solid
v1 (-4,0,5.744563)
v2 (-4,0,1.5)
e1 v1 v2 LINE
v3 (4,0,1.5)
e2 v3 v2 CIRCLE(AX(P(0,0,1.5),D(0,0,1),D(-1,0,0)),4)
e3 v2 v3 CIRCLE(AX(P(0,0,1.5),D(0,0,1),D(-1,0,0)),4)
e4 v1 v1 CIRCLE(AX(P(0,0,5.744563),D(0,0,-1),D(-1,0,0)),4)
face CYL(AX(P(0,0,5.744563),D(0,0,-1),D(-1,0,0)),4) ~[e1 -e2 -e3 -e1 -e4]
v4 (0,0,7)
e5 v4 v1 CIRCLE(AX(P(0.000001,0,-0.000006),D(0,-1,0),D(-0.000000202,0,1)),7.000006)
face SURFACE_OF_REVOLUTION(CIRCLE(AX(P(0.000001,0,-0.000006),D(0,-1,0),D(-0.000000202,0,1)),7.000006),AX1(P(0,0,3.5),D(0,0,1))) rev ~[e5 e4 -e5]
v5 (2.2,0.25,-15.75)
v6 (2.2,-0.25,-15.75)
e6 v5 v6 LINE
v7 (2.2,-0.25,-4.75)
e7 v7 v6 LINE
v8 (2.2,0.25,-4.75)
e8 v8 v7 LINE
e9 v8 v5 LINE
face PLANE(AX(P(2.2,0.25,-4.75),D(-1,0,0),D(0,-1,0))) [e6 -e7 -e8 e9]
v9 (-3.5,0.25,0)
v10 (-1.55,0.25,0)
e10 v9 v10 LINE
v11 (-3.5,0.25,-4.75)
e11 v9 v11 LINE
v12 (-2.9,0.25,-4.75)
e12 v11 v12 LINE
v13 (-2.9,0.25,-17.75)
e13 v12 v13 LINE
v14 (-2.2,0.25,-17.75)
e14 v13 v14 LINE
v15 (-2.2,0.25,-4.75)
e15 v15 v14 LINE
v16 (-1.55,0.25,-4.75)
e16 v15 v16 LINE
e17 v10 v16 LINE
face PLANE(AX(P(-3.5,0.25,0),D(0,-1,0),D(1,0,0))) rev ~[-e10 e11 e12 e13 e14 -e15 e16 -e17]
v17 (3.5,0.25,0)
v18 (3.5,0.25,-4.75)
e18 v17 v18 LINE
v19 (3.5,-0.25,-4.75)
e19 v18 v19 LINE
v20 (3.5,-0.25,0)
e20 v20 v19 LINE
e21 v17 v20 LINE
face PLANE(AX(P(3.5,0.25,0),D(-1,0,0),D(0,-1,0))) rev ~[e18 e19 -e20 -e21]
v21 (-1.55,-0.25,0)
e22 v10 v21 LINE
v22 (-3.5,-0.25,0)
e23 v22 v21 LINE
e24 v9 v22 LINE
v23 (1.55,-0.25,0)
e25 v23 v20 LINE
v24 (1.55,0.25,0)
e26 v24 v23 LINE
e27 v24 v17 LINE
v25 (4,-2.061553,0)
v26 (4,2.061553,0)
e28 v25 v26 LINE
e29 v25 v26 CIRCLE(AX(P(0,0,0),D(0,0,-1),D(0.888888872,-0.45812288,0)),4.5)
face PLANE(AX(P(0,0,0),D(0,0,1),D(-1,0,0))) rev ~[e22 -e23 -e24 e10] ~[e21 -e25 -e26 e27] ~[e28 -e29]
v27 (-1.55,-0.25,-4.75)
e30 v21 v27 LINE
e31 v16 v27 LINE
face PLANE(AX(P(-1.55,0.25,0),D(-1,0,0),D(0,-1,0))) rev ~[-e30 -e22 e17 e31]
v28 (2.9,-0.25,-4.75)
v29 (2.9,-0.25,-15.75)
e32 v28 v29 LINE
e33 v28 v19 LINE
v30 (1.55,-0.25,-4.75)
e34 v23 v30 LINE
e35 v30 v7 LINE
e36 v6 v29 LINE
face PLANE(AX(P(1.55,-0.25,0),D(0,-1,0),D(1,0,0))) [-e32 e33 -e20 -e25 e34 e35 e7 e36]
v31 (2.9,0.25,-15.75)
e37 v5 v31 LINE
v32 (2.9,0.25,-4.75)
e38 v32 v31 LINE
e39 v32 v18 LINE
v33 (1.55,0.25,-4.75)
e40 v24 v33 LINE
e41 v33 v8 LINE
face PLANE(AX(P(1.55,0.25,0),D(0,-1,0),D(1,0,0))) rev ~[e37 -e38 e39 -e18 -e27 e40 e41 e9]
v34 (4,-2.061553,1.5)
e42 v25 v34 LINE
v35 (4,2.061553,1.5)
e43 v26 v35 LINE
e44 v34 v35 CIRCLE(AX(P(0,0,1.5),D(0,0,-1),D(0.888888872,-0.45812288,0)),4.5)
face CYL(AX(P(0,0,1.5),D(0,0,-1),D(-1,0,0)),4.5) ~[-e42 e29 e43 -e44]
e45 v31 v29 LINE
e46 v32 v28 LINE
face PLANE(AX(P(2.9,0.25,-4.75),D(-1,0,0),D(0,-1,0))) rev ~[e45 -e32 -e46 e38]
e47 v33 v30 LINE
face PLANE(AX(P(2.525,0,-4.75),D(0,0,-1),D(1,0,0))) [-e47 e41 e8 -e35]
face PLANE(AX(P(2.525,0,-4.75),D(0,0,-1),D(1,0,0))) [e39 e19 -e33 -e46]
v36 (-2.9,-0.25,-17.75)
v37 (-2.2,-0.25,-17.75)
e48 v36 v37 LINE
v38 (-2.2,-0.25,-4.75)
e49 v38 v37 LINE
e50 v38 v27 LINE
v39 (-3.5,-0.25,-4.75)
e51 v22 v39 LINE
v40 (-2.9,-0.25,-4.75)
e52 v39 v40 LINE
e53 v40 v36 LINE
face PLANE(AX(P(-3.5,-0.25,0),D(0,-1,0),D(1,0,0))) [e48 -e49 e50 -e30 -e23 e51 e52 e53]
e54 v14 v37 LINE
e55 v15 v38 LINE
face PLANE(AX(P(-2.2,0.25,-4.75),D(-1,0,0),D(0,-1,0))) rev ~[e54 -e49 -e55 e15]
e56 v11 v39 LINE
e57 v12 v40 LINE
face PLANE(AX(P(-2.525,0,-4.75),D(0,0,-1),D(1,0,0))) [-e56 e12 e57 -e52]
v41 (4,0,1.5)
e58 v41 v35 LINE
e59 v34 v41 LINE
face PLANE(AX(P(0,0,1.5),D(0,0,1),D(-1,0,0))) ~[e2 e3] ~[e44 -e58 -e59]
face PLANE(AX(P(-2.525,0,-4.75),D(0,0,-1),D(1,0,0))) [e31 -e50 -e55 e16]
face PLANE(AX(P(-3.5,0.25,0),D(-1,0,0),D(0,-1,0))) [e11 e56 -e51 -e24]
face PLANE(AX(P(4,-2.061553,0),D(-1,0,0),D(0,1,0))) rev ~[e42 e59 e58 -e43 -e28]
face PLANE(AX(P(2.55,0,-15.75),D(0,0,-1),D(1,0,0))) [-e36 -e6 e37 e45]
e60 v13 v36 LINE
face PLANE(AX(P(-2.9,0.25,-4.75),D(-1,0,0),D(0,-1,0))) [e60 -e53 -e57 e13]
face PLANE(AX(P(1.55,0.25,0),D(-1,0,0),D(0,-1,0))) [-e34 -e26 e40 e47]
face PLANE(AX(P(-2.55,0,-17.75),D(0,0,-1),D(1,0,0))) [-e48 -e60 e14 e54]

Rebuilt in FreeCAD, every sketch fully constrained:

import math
import FreeCAD as App
import Part
import Sketcher
from FreeCAD import Vector


def add_polygon(sketch, points):
    """Adds a closed chain of lines whose ends are joined by coincident constraints."""
    first, n = sketch.GeometryCount, len(points)
    for a, b in zip(points, points[1:] + points[:1]):
        sketch.addGeometry(Part.LineSegment(App.Vector(*a, 0), App.Vector(*b, 0)), False)
    for i in range(n):
        sketch.addConstraint(Sketcher.Constraint("Coincident", first + i, 2, first + (i + 1) % n, 1))

doc = App.newDocument("Part")
body = doc.addObject("PartDesign::Body", "Body")

# Sketch on XZ plane
sketch1 = body.newObject("Sketcher::SketchObject", "Sketch")
sketch1.AttachmentSupport = (doc.getObject("XZ_Plane"), [""])
sketch1.MapMode = "FlatFace"
sketch1.addGeometry([
    Part.LineSegment(Vector(-4.5, 0, 0), Vector(0, 0, 0)),  # 0
    Part.LineSegment(Vector(0, 0, 0), Vector(0, 7, 0)),  # 1
    Part.ArcOfCircle(Part.Circle(Vector(0, 0, 0), Vector(0, 0, 1), 7), math.radians(90), math.radians(125)),  # 2
    Part.LineSegment(Vector(-4, 5.7, 0), Vector(-4, 1.5, 0)),  # 3
    Part.LineSegment(Vector(-4, 1.5, 0), Vector(-4.5, 1.5, 0)),  # 4
    Part.LineSegment(Vector(-4.5, 1.5, 0), Vector(-4.5, 0, 0)),  # 5
], False)
sketch1.addConstraint([
    Sketcher.Constraint("Coincident", 0, 2, 1, 1),
    Sketcher.Constraint("Coincident", 1, 2, 2, 1),
    Sketcher.Constraint("Coincident", 2, 2, 3, 1),
    Sketcher.Constraint("Coincident", 3, 2, 4, 1),
    Sketcher.Constraint("Coincident", 4, 2, 5, 1),
    Sketcher.Constraint("Coincident", 5, 2, 0, 1),
    Sketcher.Constraint("Horizontal", 0),
    Sketcher.Constraint("Vertical", 1),
    Sketcher.Constraint("Vertical", 3),
    Sketcher.Constraint("Horizontal", 4),
    Sketcher.Constraint("Vertical", 5),
    Sketcher.Constraint("Coincident", 2, 3, -1, 1),
    Sketcher.Constraint("Coincident", 0, 2, -1, 1),
    Sketcher.Constraint("DistanceY", 1, 1, 1, 2, 7.0),
    Sketcher.Constraint("DistanceX", 0, 1, 0, 2, 4.5),
    Sketcher.Constraint("DistanceX", 4, 2, 4, 1, 0.5),
    Sketcher.Constraint("DistanceY", 5, 2, 5, 1, 1.5),
])
revolution = body.newObject("PartDesign::Revolution", "Revolution")
revolution.Profile = sketch1
revolution.ReferenceAxis = (sketch1, ["V_Axis"])
revolution.Angle = 360

# Sketch on XY plane
sketch2 = body.newObject("Sketcher::SketchObject", "Sketch001")
sketch2.AttachmentSupport = (doc.getObject("XY_Plane"), [""])
sketch2.MapMode = "FlatFace"
sketch2.addGeometry([
    Part.ArcOfCircle(Part.Circle(Vector(0, 0, 0), Vector(0, 0, 1), 4.5), math.radians(-27), math.radians(27)),
    Part.LineSegment(Vector(4, -2.1, 0), Vector(4, 2.1, 0)),
], False)
sketch2.addConstraint([
    Sketcher.Constraint("Coincident", 0, 1, 1, 1),
    Sketcher.Constraint("Coincident", 1, 2, 0, 2),
    Sketcher.Constraint("Vertical", 1),
    Sketcher.Constraint("Coincident", 0, 3, -1, 1),
    Sketcher.Constraint("Radius", 0, 4.500001),
    Sketcher.Constraint("DistanceX", -1, 1, 0, 1, 4.0),
])
pocket1 = body.newObject("PartDesign::Pocket", "Pocket")
pocket1.Profile = sketch2
pocket1.Type = "ThroughAll"
pocket1.Reversed = True

# Sketch on XY plane
sketch3 = body.newObject("Sketcher::SketchObject", "Sketch002")
sketch3.AttachmentSupport = (doc.getObject("XY_Plane"), [""])
sketch3.MapMode = "FlatFace"
add_polygon(sketch3, [(1.6, -0.2), (1.6, 0.2), (3.5, 0.2), (3.5, -0.2)])  # lines 0-3
add_polygon(sketch3, [(-3.5, -0.2), (-3.5, 0.2), (-1.6, 0.2), (-1.6, -0.2)])  # lines 4-7
sketch3.addConstraint([
    Sketcher.Constraint("Vertical", 0),
    Sketcher.Constraint("Horizontal", 1),
    Sketcher.Constraint("Vertical", 2),
    Sketcher.Constraint("Horizontal", 3),
    Sketcher.Constraint("Vertical", 4),
    Sketcher.Constraint("Horizontal", 5),
    Sketcher.Constraint("Vertical", 6),
    Sketcher.Constraint("Horizontal", 7),
    Sketcher.Constraint("Symmetric", 2, 2, 4, 2, -1, 1),
    Sketcher.Constraint("Symmetric", 0, 2, 6, 2, -1, 1),
    Sketcher.Constraint("Horizontal", 1, 2, 4, 2),
    Sketcher.Constraint("DistanceY", 0, 1, 0, 2, 0.5),
    Sketcher.Constraint("DistanceX", 4, 2, 1, 2, 7.0),
    Sketcher.Constraint("DistanceX", 1, 1, 1, 2, 1.95),
])
pad1 = body.newObject("PartDesign::Pad", "Pad")
pad1.Profile = sketch3
pad1.Length = 4.75
pad1.Reversed = True

# Sketch on XY plane
sketch4 = body.newObject("Sketcher::SketchObject", "Sketch003")
sketch4.AttachmentSupport = (doc.getObject("XY_Plane"), [""])
sketch4.MapMode = "FlatFace"
sketch4.AttachmentOffset = App.Placement(Vector(0, 0, -4.75), App.Rotation())
add_polygon(sketch4, [(2.2, -0.2), (2.2, 0.2), (2.9, 0.2), (2.9, -0.2)])  # lines 0-3
sketch4.addConstraint([
    Sketcher.Constraint("Vertical", 0),
    Sketcher.Constraint("Horizontal", 1),
    Sketcher.Constraint("Vertical", 2),
    Sketcher.Constraint("Horizontal", 3),
    Sketcher.Constraint("DistanceX", 1, 1, 1, 2, 0.7),
    Sketcher.Constraint("DistanceY", 0, 1, 0, 2, 0.5),
    Sketcher.Constraint("DistanceX", -1, 1, 0, 2, 2.2),
    Sketcher.Constraint("DistanceY", -1, 1, 0, 2, 0.25),
])
pad2 = body.newObject("PartDesign::Pad", "Pad001")
pad2.Profile = sketch4
pad2.Length = 11
pad2.Reversed = True

# Sketch on XY plane
sketch5 = body.newObject("Sketcher::SketchObject", "Sketch004")
sketch5.AttachmentSupport = (doc.getObject("XY_Plane"), [""])
sketch5.MapMode = "FlatFace"
sketch5.AttachmentOffset = App.Placement(Vector(0, 0, -4.75), App.Rotation())
add_polygon(sketch5, [(-2.9, -0.2), (-2.9, 0.2), (-2.2, 0.2), (-2.2, -0.2)])  # lines 0-3
sketch5.addConstraint([
    Sketcher.Constraint("Vertical", 0),
    Sketcher.Constraint("Horizontal", 1),
    Sketcher.Constraint("Vertical", 2),
    Sketcher.Constraint("Horizontal", 3),
    Sketcher.Constraint("DistanceX", 1, 1, 1, 2, 0.7),
    Sketcher.Constraint("DistanceY", 0, 1, 0, 2, 0.5),
    Sketcher.Constraint("DistanceX", 0, 2, -1, 1, 2.9),
    Sketcher.Constraint("DistanceY", -1, 1, 0, 2, 0.25),
])
pad3 = body.newObject("PartDesign::Pad", "Pad002")
pad3.Profile = sketch5
pad3.Length = 13
pad3.Reversed = True
body2 = doc.addObject("PartDesign::Body", "Body001")
doc.recompute()

body2.BaseFeature = body
doc.recompute()
body.Visibility = False

doc.recompute()
